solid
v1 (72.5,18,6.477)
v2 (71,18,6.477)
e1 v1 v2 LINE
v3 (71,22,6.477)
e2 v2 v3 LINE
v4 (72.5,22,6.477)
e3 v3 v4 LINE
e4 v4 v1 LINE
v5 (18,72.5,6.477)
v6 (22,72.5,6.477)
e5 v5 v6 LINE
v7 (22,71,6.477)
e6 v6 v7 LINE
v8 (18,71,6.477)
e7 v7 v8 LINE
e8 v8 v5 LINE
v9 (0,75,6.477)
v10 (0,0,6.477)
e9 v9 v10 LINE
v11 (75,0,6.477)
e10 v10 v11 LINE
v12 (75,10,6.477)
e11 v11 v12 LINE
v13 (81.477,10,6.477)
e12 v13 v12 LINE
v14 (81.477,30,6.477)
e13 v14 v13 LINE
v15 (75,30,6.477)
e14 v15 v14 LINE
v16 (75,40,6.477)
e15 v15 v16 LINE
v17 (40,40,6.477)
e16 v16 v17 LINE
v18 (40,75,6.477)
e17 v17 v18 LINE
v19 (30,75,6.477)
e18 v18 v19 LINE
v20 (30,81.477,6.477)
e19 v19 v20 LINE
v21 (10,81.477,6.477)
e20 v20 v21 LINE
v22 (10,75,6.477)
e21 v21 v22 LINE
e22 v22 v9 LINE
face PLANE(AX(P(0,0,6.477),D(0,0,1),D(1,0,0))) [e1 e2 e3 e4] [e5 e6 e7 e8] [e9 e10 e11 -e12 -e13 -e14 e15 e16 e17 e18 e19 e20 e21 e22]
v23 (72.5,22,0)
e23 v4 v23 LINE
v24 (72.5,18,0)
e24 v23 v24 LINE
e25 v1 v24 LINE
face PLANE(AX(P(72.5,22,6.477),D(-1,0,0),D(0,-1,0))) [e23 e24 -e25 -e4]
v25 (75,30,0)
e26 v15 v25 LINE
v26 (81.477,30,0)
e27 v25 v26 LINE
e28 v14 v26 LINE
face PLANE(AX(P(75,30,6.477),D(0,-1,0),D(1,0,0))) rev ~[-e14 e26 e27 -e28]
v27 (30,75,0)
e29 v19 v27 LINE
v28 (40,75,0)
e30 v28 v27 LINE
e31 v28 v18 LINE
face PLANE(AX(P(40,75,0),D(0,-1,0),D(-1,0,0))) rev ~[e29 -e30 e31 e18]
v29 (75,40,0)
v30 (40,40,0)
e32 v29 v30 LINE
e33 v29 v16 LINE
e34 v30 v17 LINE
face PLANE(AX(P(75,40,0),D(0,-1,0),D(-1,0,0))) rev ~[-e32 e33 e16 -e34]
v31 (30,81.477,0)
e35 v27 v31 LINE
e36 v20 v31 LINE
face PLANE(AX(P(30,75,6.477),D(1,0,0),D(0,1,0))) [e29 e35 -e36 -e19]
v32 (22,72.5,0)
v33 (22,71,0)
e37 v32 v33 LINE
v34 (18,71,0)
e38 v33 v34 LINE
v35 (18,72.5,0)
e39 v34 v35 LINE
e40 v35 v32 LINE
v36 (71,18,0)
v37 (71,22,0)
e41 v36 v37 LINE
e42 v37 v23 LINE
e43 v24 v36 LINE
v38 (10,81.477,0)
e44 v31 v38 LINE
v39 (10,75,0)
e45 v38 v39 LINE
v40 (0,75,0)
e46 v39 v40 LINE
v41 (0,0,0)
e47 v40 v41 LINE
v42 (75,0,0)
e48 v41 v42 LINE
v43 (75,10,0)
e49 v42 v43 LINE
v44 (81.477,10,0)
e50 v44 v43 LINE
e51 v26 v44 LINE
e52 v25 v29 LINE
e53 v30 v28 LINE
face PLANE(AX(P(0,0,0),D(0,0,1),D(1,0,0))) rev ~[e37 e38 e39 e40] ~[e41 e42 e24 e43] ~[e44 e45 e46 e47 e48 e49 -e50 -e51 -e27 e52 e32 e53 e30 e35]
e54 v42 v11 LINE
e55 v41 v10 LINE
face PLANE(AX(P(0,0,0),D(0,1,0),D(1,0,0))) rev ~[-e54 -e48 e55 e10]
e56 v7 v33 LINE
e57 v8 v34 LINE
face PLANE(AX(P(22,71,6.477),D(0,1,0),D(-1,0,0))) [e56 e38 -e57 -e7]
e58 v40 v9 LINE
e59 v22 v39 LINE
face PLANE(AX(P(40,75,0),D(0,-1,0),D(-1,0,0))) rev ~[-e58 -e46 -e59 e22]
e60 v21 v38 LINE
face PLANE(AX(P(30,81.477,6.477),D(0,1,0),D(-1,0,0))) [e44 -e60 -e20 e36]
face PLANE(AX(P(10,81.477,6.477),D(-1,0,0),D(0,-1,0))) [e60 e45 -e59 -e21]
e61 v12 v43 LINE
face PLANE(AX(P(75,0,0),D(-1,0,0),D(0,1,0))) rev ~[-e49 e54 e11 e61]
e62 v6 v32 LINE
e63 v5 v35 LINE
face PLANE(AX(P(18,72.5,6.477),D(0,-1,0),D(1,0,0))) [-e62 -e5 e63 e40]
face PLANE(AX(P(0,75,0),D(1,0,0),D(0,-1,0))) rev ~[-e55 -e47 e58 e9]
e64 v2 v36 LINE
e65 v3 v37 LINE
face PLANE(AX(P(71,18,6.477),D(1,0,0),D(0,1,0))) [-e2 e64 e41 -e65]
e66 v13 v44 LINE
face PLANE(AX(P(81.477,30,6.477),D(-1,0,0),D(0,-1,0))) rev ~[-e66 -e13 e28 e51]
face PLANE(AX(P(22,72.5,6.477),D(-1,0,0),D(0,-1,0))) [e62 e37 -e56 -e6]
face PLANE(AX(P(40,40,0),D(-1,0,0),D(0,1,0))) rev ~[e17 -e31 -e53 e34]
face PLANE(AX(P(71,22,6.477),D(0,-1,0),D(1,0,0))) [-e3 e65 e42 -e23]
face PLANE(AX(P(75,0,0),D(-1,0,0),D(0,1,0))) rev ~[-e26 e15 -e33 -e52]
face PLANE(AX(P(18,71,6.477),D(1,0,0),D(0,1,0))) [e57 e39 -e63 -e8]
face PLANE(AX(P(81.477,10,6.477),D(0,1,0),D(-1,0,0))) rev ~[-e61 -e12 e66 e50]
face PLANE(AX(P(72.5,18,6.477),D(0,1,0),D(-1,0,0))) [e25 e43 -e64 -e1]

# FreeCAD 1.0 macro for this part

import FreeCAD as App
import Part
import Sketcher

V = App.Vector
Q = App.Units.Quantity

doc = App.newDocument("Part")
params = doc.addObject("Spreadsheet::Sheet", "Params")
for row, (alias, value) in enumerate([
    ("sketch1_width", "40 mm"),
    ("sketch1_width2", "75 mm"),
    ("pad1_length", "6.477 mm"),
    ("sketch2_width", "20 mm"),
    ("pad2_length", "6.477 mm"),
    ("sketch3_width", "4 mm"),
    ("sketch3_width2", "1.5 mm"),
], start=1):
    params.set(f"A{row}", alias)
    params.set(f"B{row}", "=" + value)
    params.setAlias(f"B{row}", alias)

body = doc.addObject("PartDesign::Body", "Body")

sketch1 = body.newObject("Sketcher::SketchObject", "Sketch")
sketch1.AttachmentSupport = (doc.getObject("XY_Plane"), [""])
sketch1.MapMode = "FlatFace"
sketch1.addGeometry(Part.LineSegment(V(40, 75, 0), V(0, 75, 0)), False)
sketch1.addGeometry(Part.LineSegment(V(0, 75, 0), V(0, 0, 0)), False)
sketch1.addGeometry(Part.LineSegment(V(0, 0, 0), V(75, 0, 0)), False)
sketch1.addGeometry(Part.LineSegment(V(75, 0, 0), V(75, 40, 0)), False)
sketch1.addGeometry(Part.LineSegment(V(75, 40, 0), V(40, 40, 0)), False)
sketch1.addGeometry(Part.LineSegment(V(40, 40, 0), V(40, 75, 0)), False)
sketch1.addConstraint(Sketcher.Constraint("Coincident", 0, 2, 1, 1))
sketch1.addConstraint(Sketcher.Constraint("Coincident", 1, 2, 2, 1))
sketch1.addConstraint(Sketcher.Constraint("Coincident", 2, 2, 3, 1))
sketch1.addConstraint(Sketcher.Constraint("Coincident", 3, 2, 4, 1))
sketch1.addConstraint(Sketcher.Constraint("Coincident", 4, 2, 5, 1))
sketch1.addConstraint(Sketcher.Constraint("Coincident", 5, 2, 0, 1))
sketch1.addConstraint(Sketcher.Constraint("Horizontal", 0))
sketch1.addConstraint(Sketcher.Constraint("Vertical", 1))
sketch1.addConstraint(Sketcher.Constraint("Horizontal", 2))
sketch1.addConstraint(Sketcher.Constraint("Vertical", 3))
sketch1.addConstraint(Sketcher.Constraint("Horizontal", 4))
sketch1.addConstraint(Sketcher.Constraint("Vertical", 5))
sketch1.addConstraint(Sketcher.Constraint("Coincident", 1, 2, -1, 1))
sketch1.addConstraint(Sketcher.Constraint("Equal", 2, 1))
sketch1.addConstraint(Sketcher.Constraint("Equal", 0, 3))
sketch1.addConstraint(Sketcher.Constraint("DistanceX", 0, 2, 0, 1, Q("40 mm")))
sketch1.addConstraint(Sketcher.Constraint("DistanceX", 2, 1, 2, 2, Q("75 mm")))
sketch1.setExpression("Constraints[15]", "Params.sketch1_width")
sketch1.setExpression("Constraints[16]", "Params.sketch1_width2")
pad1 = body.newObject("PartDesign::Pad", "Pad")
pad1.Profile = sketch1
pad1.setExpression("Length", "Params.pad1_length")

sketch2 = body.newObject("Sketcher::SketchObject", "Sketch001")
sketch2.AttachmentSupport = (doc.getObject("XY_Plane"), [""])
sketch2.MapMode = "FlatFace"
sketch2.AttachmentOffset = App.Placement(V(0, 0, 6.477), App.Rotation())
sketch2.addGeometry(Part.LineSegment(V(75, 30, 0), V(75, 10, 0)), False)
sketch2.addGeometry(Part.LineSegment(V(75, 10, 0), V(81.477, 10, 0)), False)
sketch2.addGeometry(Part.LineSegment(V(81.477, 10, 0), V(81.477, 30, 0)), False)
sketch2.addGeometry(Part.LineSegment(V(81.477, 30, 0), V(75, 30, 0)), False)
sketch2.addGeometry(Part.LineSegment(V(10, 75, 0), V(30, 75, 0)), False)
sketch2.addGeometry(Part.LineSegment(V(30, 75, 0), V(30, 81.477, 0)), False)
sketch2.addGeometry(Part.LineSegment(V(30, 81.477, 0), V(10, 81.477, 0)), False)
sketch2.addGeometry(Part.LineSegment(V(10, 81.477, 0), V(10, 75, 0)), False)
sketch2.addConstraint(Sketcher.Constraint("Coincident", 0, 2, 1, 1))
sketch2.addConstraint(Sketcher.Constraint("Coincident", 1, 2, 2, 1))
sketch2.addConstraint(Sketcher.Constraint("Coincident", 2, 2, 3, 1))
sketch2.addConstraint(Sketcher.Constraint("Coincident", 3, 2, 0, 1))
sketch2.addConstraint(Sketcher.Constraint("Coincident", 4, 2, 5, 1))
sketch2.addConstraint(Sketcher.Constraint("Coincident", 5, 2, 6, 1))
sketch2.addConstraint(Sketcher.Constraint("Coincident", 6, 2, 7, 1))
sketch2.addConstraint(Sketcher.Constraint("Coincident", 7, 2, 4, 1))
sketch2.addConstraint(Sketcher.Constraint("Vertical", 0))
sketch2.addConstraint(Sketcher.Constraint("Horizontal", 1))
sketch2.addConstraint(Sketcher.Constraint("Vertical", 2))
sketch2.addConstraint(Sketcher.Constraint("Horizontal", 3))
sketch2.addConstraint(Sketcher.Constraint("Horizontal", 4))
sketch2.addConstraint(Sketcher.Constraint("Vertical", 5))
sketch2.addConstraint(Sketcher.Constraint("Horizontal", 6))
sketch2.addConstraint(Sketcher.Constraint("Vertical", 7))
sketch2.addConstraint(Sketcher.Constraint("Equal", 6, 0))
sketch2.addConstraint(Sketcher.Constraint("Equal", 3, 5))
sketch2.addConstraint(Sketcher.Constraint("DistanceX", 4, 1, 4, 2, Q("20 mm")))
sketch2.addConstraint(Sketcher.Constraint("DistanceX", 1, 1, 1, 2, Q("6.477 mm")))
sketch2.addConstraint(Sketcher.Constraint("DistanceX", -1, 1, 0, 2, Q("75 mm")))
sketch2.addConstraint(Sketcher.Constraint("DistanceY", -1, 1, 0, 2, Q("10 mm")))
sketch2.addConstraint(Sketcher.Constraint("DistanceX", -1, 1, 4, 2, Q("30 mm")))
sketch2.addConstraint(Sketcher.Constraint("DistanceY", -1, 1, 4, 2, Q("75 mm")))
sketch2.setExpression("Constraints[18]", "Params.sketch2_width")
pad2 = body.newObject("PartDesign::Pad", "Pad001")
pad2.Profile = sketch2
pad2.setExpression("Length", "Params.pad2_length")
pad2.Reversed = True

sketch3 = body.newObject("Sketcher::SketchObject", "Sketch002")
sketch3.AttachmentSupport = (doc.getObject("XY_Plane"), [""])
sketch3.MapMode = "FlatFace"
sketch3.AttachmentOffset = App.Placement(V(0, 0, 6.477), App.Rotation())
sketch3.addGeometry(Part.LineSegment(V(22, 72.5, 0), V(18, 72.5, 0)), False)
sketch3.addGeometry(Part.LineSegment(V(18, 72.5, 0), V(18, 71, 0)), False)
sketch3.addGeometry(Part.LineSegment(V(18, 71, 0), V(22, 71, 0)), False)
sketch3.addGeometry(Part.LineSegment(V(22, 71, 0), V(22, 72.5, 0)), False)
sketch3.addGeometry(Part.LineSegment(V(71, 18, 0), V(72.5, 18, 0)), False)
sketch3.addGeometry(Part.LineSegment(V(72.5, 18, 0), V(72.5, 22, 0)), False)
sketch3.addGeometry(Part.LineSegment(V(72.5, 22, 0), V(71, 22, 0)), False)
sketch3.addGeometry(Part.LineSegment(V(71, 22, 0), V(71, 18, 0)), False)
sketch3.addConstraint(Sketcher.Constraint("Coincident", 0, 2, 1, 1))
sketch3.addConstraint(Sketcher.Constraint("Coincident", 1, 2, 2, 1))
sketch3.addConstraint(Sketcher.Constraint("Coincident", 2, 2, 3, 1))
sketch3.addConstraint(Sketcher.Constraint("Coincident", 3, 2, 0, 1))
sketch3.addConstraint(Sketcher.Constraint("Coincident", 4, 2, 5, 1))
sketch3.addConstraint(Sketcher.Constraint("Coincident", 5, 2, 6, 1))
sketch3.addConstraint(Sketcher.Constraint("Coincident", 6, 2, 7, 1))
sketch3.addConstraint(Sketcher.Constraint("Coincident", 7, 2, 4, 1))
sketch3.addConstraint(Sketcher.Constraint("Horizontal", 0))
sketch3.addConstraint(Sketcher.Constraint("Vertical", 1))
sketch3.addConstraint(Sketcher.Constraint("Horizontal", 2))
sketch3.addConstraint(Sketcher.Constraint("Vertical", 3))
sketch3.addConstraint(Sketcher.Constraint("Horizontal", 4))
sketch3.addConstraint(Sketcher.Constraint("Vertical", 5))
sketch3.addConstraint(Sketcher.Constraint("Horizontal", 6))
sketch3.addConstraint(Sketcher.Constraint("Vertical", 7))
sketch3.addConstraint(Sketcher.Constraint("Equal", 6, 1))
sketch3.addConstraint(Sketcher.Constraint("Equal", 2, 5))
sketch3.addConstraint(Sketcher.Constraint("DistanceX", 0, 2, 0, 1, Q("4 mm")))
sketch3.addConstraint(Sketcher.Constraint("DistanceX", 4, 1, 4, 2, Q("1.5 mm")))
sketch3.addConstraint(Sketcher.Constraint("DistanceX", -1, 1, 0, 2, Q("18 mm")))
sketch3.addConstraint(Sketcher.Constraint("DistanceY", -1, 1, 1, 2, Q("71 mm")))
sketch3.addConstraint(Sketcher.Constraint("DistanceY", -1, 1, 4, 2, Q("18 mm")))
sketch3.addConstraint(Sketcher.Constraint("DistanceX", -1, 1, 6, 2, Q("71 mm")))
sketch3.setExpression("Constraints[18]", "Params.sketch3_width")
sketch3.setExpression("Constraints[19]", "Params.sketch3_width2")
pocket1 = body.newObject("PartDesign::Pocket", "Pocket")
pocket1.Profile = sketch3
pocket1.Type = "ThroughAll"

doc.recompute()
